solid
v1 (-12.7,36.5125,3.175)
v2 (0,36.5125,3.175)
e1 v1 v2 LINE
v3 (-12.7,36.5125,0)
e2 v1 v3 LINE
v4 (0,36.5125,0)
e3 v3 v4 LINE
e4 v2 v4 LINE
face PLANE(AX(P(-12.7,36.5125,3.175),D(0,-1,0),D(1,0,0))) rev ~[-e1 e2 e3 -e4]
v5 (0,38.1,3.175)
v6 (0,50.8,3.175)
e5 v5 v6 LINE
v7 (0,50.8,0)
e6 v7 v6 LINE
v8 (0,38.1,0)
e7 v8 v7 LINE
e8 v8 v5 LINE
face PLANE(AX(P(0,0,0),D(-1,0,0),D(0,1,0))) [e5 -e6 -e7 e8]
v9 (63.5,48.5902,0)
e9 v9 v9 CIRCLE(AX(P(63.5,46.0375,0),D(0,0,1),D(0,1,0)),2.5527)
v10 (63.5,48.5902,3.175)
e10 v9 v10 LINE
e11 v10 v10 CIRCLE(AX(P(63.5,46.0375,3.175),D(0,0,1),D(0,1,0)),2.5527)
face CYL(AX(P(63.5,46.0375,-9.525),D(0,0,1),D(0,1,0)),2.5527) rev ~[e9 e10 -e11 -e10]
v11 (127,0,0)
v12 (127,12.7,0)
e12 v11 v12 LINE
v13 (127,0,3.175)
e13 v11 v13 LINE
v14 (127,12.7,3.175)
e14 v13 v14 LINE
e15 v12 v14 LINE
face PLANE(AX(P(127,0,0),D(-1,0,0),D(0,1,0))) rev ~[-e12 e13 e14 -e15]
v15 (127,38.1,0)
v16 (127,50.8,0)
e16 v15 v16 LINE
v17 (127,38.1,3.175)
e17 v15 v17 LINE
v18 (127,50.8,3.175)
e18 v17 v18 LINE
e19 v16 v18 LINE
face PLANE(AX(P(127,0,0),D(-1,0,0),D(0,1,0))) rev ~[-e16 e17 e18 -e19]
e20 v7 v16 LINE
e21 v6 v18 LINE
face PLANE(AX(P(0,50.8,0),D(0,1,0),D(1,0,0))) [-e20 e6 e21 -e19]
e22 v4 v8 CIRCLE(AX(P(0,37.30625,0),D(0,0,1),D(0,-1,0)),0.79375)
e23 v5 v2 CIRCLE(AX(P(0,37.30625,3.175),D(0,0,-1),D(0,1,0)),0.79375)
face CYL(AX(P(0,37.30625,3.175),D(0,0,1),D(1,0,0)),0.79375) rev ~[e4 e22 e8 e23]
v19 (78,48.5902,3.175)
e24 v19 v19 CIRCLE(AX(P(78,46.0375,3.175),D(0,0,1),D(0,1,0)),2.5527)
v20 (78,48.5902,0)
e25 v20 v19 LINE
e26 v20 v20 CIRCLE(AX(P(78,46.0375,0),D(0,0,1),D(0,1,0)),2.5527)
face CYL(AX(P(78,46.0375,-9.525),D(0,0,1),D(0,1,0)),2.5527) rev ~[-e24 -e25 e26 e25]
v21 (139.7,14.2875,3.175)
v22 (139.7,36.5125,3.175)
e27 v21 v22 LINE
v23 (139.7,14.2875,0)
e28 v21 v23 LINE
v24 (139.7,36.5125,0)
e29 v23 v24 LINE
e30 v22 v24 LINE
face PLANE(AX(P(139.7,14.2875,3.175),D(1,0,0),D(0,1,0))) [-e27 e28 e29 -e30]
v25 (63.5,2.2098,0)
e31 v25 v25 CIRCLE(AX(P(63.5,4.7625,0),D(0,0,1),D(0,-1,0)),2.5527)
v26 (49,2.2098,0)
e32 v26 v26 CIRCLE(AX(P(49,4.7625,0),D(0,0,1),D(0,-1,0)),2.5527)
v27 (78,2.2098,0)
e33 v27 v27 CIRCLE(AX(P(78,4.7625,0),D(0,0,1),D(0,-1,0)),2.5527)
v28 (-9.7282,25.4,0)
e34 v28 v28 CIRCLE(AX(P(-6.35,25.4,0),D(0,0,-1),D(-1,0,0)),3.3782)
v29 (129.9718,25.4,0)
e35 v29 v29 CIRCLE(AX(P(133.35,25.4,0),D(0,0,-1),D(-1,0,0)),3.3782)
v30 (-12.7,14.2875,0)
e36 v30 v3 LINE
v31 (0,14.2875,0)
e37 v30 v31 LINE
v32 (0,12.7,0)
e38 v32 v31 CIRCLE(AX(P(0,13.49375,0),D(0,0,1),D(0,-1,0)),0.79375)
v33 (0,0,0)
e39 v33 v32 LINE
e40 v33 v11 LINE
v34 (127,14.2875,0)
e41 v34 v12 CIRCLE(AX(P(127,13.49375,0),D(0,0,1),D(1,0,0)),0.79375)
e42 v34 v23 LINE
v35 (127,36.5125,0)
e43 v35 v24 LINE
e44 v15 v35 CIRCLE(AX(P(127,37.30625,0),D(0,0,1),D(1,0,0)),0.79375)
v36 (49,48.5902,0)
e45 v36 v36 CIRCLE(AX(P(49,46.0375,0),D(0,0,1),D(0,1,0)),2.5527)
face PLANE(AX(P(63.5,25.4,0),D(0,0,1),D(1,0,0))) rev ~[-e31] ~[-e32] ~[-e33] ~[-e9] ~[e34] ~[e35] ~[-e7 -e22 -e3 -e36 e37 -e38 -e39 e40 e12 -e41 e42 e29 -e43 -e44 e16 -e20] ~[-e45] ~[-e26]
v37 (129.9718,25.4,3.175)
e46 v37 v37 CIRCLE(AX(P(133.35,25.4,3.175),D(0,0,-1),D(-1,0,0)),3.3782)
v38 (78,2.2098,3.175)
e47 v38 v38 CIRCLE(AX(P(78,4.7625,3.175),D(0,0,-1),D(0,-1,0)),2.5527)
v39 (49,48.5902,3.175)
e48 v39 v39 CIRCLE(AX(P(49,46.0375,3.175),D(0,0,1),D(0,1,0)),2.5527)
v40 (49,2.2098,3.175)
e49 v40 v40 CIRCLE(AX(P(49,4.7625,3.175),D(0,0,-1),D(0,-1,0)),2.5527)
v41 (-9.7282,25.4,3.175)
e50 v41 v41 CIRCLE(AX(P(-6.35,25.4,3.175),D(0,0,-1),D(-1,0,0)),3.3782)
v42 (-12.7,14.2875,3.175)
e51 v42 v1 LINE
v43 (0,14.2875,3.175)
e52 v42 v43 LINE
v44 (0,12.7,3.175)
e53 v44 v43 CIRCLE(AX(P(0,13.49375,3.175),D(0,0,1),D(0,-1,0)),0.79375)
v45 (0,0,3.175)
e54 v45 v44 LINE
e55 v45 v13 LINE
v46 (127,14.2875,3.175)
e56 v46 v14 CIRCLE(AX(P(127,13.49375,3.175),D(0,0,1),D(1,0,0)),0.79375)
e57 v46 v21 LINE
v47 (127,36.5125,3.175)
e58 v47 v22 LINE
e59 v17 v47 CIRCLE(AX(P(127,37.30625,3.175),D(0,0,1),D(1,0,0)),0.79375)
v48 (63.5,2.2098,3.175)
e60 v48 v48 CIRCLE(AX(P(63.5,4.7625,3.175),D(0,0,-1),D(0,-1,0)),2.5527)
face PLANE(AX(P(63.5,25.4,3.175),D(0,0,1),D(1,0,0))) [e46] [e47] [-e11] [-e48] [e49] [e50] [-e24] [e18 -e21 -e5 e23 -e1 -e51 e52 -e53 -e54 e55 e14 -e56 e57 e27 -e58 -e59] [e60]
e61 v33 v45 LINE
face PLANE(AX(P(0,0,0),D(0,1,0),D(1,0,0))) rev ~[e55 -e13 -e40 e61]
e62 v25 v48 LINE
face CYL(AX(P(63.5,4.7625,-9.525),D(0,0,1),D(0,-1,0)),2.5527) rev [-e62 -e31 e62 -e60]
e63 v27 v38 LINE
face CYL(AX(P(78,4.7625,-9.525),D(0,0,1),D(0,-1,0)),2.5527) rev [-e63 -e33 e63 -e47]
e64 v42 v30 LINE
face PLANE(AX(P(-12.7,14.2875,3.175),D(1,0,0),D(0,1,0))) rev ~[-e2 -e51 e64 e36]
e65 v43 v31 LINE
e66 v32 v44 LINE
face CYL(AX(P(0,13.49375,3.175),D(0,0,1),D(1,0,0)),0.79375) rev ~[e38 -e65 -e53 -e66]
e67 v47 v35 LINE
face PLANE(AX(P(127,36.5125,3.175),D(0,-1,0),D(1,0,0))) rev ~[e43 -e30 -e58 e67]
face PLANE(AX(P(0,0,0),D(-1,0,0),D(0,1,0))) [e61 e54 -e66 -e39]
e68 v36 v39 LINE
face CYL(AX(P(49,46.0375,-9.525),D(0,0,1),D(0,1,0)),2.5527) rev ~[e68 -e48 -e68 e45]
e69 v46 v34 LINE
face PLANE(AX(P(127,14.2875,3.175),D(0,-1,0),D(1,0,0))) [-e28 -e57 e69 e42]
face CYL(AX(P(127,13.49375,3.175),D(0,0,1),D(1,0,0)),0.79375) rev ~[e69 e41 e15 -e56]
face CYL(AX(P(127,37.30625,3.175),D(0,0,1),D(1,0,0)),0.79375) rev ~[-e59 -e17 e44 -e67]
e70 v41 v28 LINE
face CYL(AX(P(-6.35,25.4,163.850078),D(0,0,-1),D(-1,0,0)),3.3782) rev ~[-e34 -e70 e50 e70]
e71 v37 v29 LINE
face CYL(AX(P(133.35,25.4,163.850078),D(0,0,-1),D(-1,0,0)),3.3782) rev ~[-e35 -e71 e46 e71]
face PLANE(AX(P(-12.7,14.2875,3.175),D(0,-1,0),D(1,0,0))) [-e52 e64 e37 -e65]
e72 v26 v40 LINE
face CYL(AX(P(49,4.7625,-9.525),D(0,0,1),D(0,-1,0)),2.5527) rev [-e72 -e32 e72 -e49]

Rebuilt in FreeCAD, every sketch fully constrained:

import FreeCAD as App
import Part
import Sketcher

V = App.Vector
Q = App.Units.Quantity


def add_polygon(sketch, points):
    """Adds a closed chain of lines whose ends are joined by coincident constraints."""
    first, n = sketch.GeometryCount, len(points)
    for a, b in zip(points, points[1:] + points[:1]):
        sketch.addGeometry(Part.LineSegment(App.Vector(*a, 0), App.Vector(*b, 0)), False)
    for i in range(n):
        sketch.addConstraint(Sketcher.Constraint("Coincident", first + i, 2, first + (i + 1) % n, 1))

doc = App.newDocument("Part")
body = doc.addObject("PartDesign::Body", "Body")

sketch1 = body.newObject("Sketcher::SketchObject", "Sketch")
sketch1.AttachmentSupport = (doc.getObject("XY_Plane"), [""])
sketch1.MapMode = "FlatFace"
add_polygon(sketch1, [(0, 51), (0, 0), (127, 0), (127, 51)])
sketch1.addConstraint([
    Sketcher.Constraint("Vertical", 0),
    Sketcher.Constraint("Horizontal", 1),
    Sketcher.Constraint("Vertical", 2),
    Sketcher.Constraint("Horizontal", 3),
    Sketcher.Constraint("Coincident", 0, 2, -1, 1),
    Sketcher.Constraint("DistanceX", 1, 1, 1, 2, Q("5 in")),
    Sketcher.Constraint("DistanceY", 0, 2, 0, 1, Q("2 in")),
])
pad1 = body.newObject("PartDesign::Pad", "Pad")
pad1.Profile = sketch1
pad1.Length = Q("0.125 in")

sketch2 = body.newObject("Sketcher::SketchObject", "Sketch001")
sketch2.AttachmentSupport = (doc.getObject("XY_Plane"), [""])
sketch2.MapMode = "FlatFace"
sketch2.AttachmentOffset = App.Placement(V(0, 0, 0.125 * 25.4), App.Rotation())
add_polygon(sketch2, [(-13, 37), (-13, 14), (0, 14), (0, 37)])
add_polygon(sketch2, [(127, 37), (127, 14), (140, 14), (140, 37)])
sketch2.addConstraint([
    Sketcher.Constraint("Vertical", 0),
    Sketcher.Constraint("Horizontal", 1),
    Sketcher.Constraint("Vertical", 2),
    Sketcher.Constraint("Horizontal", 3),
    Sketcher.Constraint("Vertical", 4),
    Sketcher.Constraint("Horizontal", 5),
    Sketcher.Constraint("Vertical", 6),
    Sketcher.Constraint("Horizontal", 7),
    Sketcher.Constraint("PointOnObject", 1, 2, -2),
    Sketcher.Constraint("Horizontal", 1, 2, 4, 2),
    Sketcher.Constraint("Horizontal", 3, 2, 6, 2),
    Sketcher.Constraint("Equal", 3, 5),
    Sketcher.Constraint("DistanceX", 1, 1, 1, 2, Q("0.5 in")),
    Sketcher.Constraint("DistanceX", -1, 1, 4, 2, Q("5 in")),
    Sketcher.Constraint("DistanceY", 0, 2, 0, 1, Q("0.875 in")),
    Sketcher.Constraint("DistanceY", -1, 1, 0, 2, Q("0.5625 in")),
])
pad2 = body.newObject("PartDesign::Pad", "Pad001")
pad2.Profile = sketch2
pad2.Length = Q("0.125 in")
pad2.Reversed = True

sketch3 = body.newObject("Sketcher::SketchObject", "Sketch002")
sketch3.AttachmentSupport = (doc.getObject("XY_Plane"), [""])
sketch3.MapMode = "FlatFace"
sketch3.AttachmentOffset = App.Placement(V(0, 0, 0.125 * 25.4), App.Rotation())
sketch3.addGeometry([
    Part.Circle(V(0, 37.3, 0), V(0, 0, 1), 0.8),
    Part.Circle(V(0, 13.5, 0), V(0, 0, 1), 0.8),
    Part.Circle(V(127, 13.5, 0), V(0, 0, 1), 0.8),
    Part.Circle(V(127, 37.3, 0), V(0, 0, 1), 0.8),
], False)
sketch3.addConstraint([
    Sketcher.Constraint("Equal", 0, 1),
    Sketcher.Constraint("Equal", 1, 2),
    Sketcher.Constraint("Equal", 2, 3),
    Sketcher.Constraint("PointOnObject", 0, 3, -2),
    Sketcher.Constraint("PointOnObject", 1, 3, -2),
    Sketcher.Constraint("Horizontal", 1, 3, 2, 3),
    Sketcher.Constraint("Horizontal", 0, 3, 3, 3),
    Sketcher.Constraint("Vertical", 2, 3, 3, 3),
    Sketcher.Constraint("Diameter", 0, Q("0.0625 in")),
    Sketcher.Constraint("DistanceX", -1, 1, 2, 3, Q("5 in")),
    Sketcher.Constraint("DistanceY", -1, 1, 0, 3, Q("1.46875 in")),
    Sketcher.Constraint("DistanceY", -1, 1, 1, 3, Q("0.53125 in")),
])
pocket1 = body.newObject("PartDesign::Pocket", "Pocket")
pocket1.Profile = sketch3
pocket1.Type = "ThroughAll"

sketch4 = body.newObject("Sketcher::SketchObject", "Sketch003")
sketch4.AttachmentSupport = (doc.getObject("XY_Plane"), [""])
sketch4.MapMode = "FlatFace"
sketch4.AttachmentOffset = App.Placement(V(0, 0, 0.125 * 25.4), App.Rotation())
sketch4.addGeometry([
    Part.Circle(V(-6.3, 25.4, 0), V(0, 0, 1), 3.4),
    Part.Circle(V(133.3, 25.4, 0), V(0, 0, 1), 3.4),
], False)
sketch4.addConstraint([
    Sketcher.Constraint("Equal", 0, 1),
    Sketcher.Constraint("Horizontal", 0, 3, 1, 3),
    Sketcher.Constraint("Diameter", 0, Q("0.266 in")),
    Sketcher.Constraint("DistanceY", -1, 1, 0, 3, Q("1 in")),
    Sketcher.Constraint("DistanceX", 0, 3, 1, 3, Q("5.5 in")),
    Sketcher.Constraint("DistanceX", 0, 3, -1, 1, Q("0.25 in")),
])
doc.recompute()
hole = body.newObject("PartDesign::Hole", "Hole")
hole.Profile = sketch4
hole.ThreadType = "None"
hole.Diameter = Q("0.266 in")
hole.DepthType = "ThroughAll"

sketch5 = body.newObject("Sketcher::SketchObject", "Sketch004")
sketch5.AttachmentSupport = (doc.getObject("YZ_Plane"), [""])
sketch5.MapMode = "FlatFace"
sketch5.AttachmentOffset = App.Placement(V(0, 0, 2.5 * 25.4), App.Rotation())
add_polygon(sketch5, [(4.8, -11.1), (4.8, 3.2), (2.2, 3.2), (2.2, -9.5)])
sketch5.addGeometry(Part.LineSegment(V(4.8, 3.2, 0), V(4.8, -11.1, 0)), True)
sketch5.addConstraint([
    Sketcher.Constraint("Vertical", 0),
    Sketcher.Constraint("Horizontal", 1),
    Sketcher.Constraint("Vertical", 2),
    Sketcher.Constraint("Vertical", 4),
    Sketcher.Constraint("Coincident", 4, 1, 0, 2),
    Sketcher.Constraint("Equal", 0, 4),
    Sketcher.Constraint("DistanceY", 2, 2, 2, 1, Q("0.5 in")),
    Sketcher.Constraint("Angle", 3, Q("-31 deg")),
    Sketcher.Constraint("DistanceX", 1, 2, 1, 1, Q("0.1005 in")),
    Sketcher.Constraint("DistanceX", -1, 1, 0, 2, Q("0.1875 in")),
    Sketcher.Constraint("DistanceY", -1, 1, 0, 2, Q("0.125 in")),
])
groove = body.newObject("PartDesign::Groove", "Groove")
groove.Profile = sketch5
groove.ReferenceAxis = (sketch5, ["Axis0"])
groove.Angle = 360
doc.recompute()

linearpattern = body.newObject("PartDesign::LinearPattern", "LinearPattern")
linearpattern.Originals = [groove]
linearpattern.Direction = (doc.getObject("X_Axis"), [""])
linearpattern.Mode = "offset"
linearpattern.Offset = 14.5
linearpattern.Occurrences = 2
body.Tip = linearpattern
doc.recompute()

linearpattern2 = body.newObject("PartDesign::LinearPattern", "LinearPattern001")
linearpattern2.Originals = [groove]
linearpattern2.Direction = (doc.getObject("X_Axis"), [""])
linearpattern2.Mode = "offset"
linearpattern2.Offset = 14.5
linearpattern2.Occurrences = 2
linearpattern2.Reversed = True
body.Tip = linearpattern2
doc.recompute()

datumplane = body.newObject("PartDesign::Plane", "DatumPlane")
datumplane.AttachmentSupport = (doc.getObject("XZ_Plane"), [""])
datumplane.MapMode = "FlatFace"
datumplane.AttachmentOffset = App.Placement(V(0, 0, -1 * 25.4), App.Rotation())
mirrored = body.newObject("PartDesign::Mirrored", "Mirrored")
mirrored.Originals = [groove]
mirrored.MirrorPlane = (datumplane, [""])
body.Tip = mirrored

sketch6 = body.newObject("Sketcher::SketchObject", "Sketch005")
sketch6.AttachmentSupport = (doc.getObject("YZ_Plane"), [""])
sketch6.MapMode = "FlatFace"
sketch6.AttachmentOffset = App.Placement(V(0, 0, 78), App.Rotation())
add_polygon(sketch6, [(46, 3.2), (46, -11.1), (48.6, -9.5), (48.6, 3.2)])
sketch6.addGeometry(Part.LineSegment(V(46, -11.1, 0), V(46, 3.2, 0)), True)
sketch6.addConstraint([
    Sketcher.Constraint("Vertical", 0),
    Sketcher.Constraint("Vertical", 2),
    Sketcher.Constraint("Horizontal", 3),
    Sketcher.Constraint("Vertical", 4),
    Sketcher.Constraint("Coincident", 4, 1, 0, 2),
    Sketcher.Constraint("Horizontal", 2, 2, 4, 2),
    Sketcher.Constraint("DistanceY", 2, 1, 2, 2, Q("0.5 in")),
    Sketcher.Constraint("Angle", 1, Q("31 deg")),
    Sketcher.Constraint("DistanceX", 3, 2, 3, 1, Q("0.1005 in")),
    Sketcher.Constraint("DistanceX", -1, 1, 0, 2, Q("1.8125 in")),
    Sketcher.Constraint("DistanceY", 1, 2, -1, 1, Q("0.375 in")),
])
groove2 = body.newObject("PartDesign::Groove", "Groove001")
groove2.Profile = sketch6
groove2.ReferenceAxis = (sketch6, ["Axis0"])
groove2.Angle = 360

sketch7 = body.newObject("Sketcher::SketchObject", "Sketch006")
sketch7.AttachmentSupport = (doc.getObject("YZ_Plane"), [""])
sketch7.MapMode = "FlatFace"
sketch7.AttachmentOffset = App.Placement(V(0, 0, 49), App.Rotation())
add_polygon(sketch7, [(46, 3.2), (46, -11.1), (48.6, -9.5), (48.6, 3.2)])
sketch7.addGeometry(Part.LineSegment(V(46, -11.1, 0), V(46, 3.2, 0)), True)
sketch7.addConstraint([
    Sketcher.Constraint("Vertical", 0),
    Sketcher.Constraint("Vertical", 2),
    Sketcher.Constraint("Horizontal", 3),
    Sketcher.Constraint("Vertical", 4),
    Sketcher.Constraint("Coincident", 4, 1, 0, 2),
    Sketcher.Constraint("Horizontal", 2, 2, 4, 2),
    Sketcher.Constraint("DistanceY", 2, 1, 2, 2, Q("0.5 in")),
    Sketcher.Constraint("Angle", 1, Q("31 deg")),
    Sketcher.Constraint("DistanceX", 3, 2, 3, 1, Q("0.1005 in")),
    Sketcher.Constraint("DistanceX", -1, 1, 0, 2, Q("1.8125 in")),
    Sketcher.Constraint("DistanceY", 1, 2, -1, 1, Q("0.375 in")),
])
groove3 = body.newObject("PartDesign::Groove", "Groove002")
groove3.Profile = sketch7
groove3.ReferenceAxis = (sketch7, ["Axis0"])
groove3.Angle = 360

doc.recompute()
